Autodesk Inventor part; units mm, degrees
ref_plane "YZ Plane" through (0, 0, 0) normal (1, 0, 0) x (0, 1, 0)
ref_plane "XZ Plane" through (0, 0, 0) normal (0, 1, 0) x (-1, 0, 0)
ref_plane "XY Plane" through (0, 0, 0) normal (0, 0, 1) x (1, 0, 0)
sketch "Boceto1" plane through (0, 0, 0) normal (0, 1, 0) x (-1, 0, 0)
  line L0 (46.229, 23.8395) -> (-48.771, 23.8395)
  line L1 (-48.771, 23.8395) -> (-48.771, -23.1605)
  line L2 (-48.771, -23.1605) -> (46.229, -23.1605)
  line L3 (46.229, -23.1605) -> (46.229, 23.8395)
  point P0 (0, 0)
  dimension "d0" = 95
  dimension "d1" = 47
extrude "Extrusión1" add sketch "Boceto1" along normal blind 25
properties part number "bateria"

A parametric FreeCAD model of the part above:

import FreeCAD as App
import Part
import Sketcher
Q = App.Units.Quantity


def add_polygon(sketch, points):
    """Adds a closed chain of lines whose ends are joined by coincident constraints."""
    first, n = sketch.GeometryCount, len(points)
    for a, b in zip(points, points[1:] + points[:1]):
        sketch.addGeometry(Part.LineSegment(App.Vector(*a, 0), App.Vector(*b, 0)), False)
    for i in range(n):
        sketch.addConstraint(Sketcher.Constraint("Coincident", first + i, 2, first + (i + 1) % n, 1))

doc = App.newDocument("Part")
body = doc.addObject("PartDesign::Body", "Body")

sketch1 = body.newObject("Sketcher::SketchObject", "Sketch")
sketch1.AttachmentSupport = (doc.getObject("XZ_Plane"), [""])
sketch1.MapMode = "FlatFace"
add_polygon(sketch1, [(-46.229, -23.1605), (-46.229, 23.8395), (48.771, 23.8395), (48.771, -23.1605)])
sketch1.addConstraint(Sketcher.Constraint("Vertical", 0))
sketch1.addConstraint(Sketcher.Constraint("Horizontal", 1))
sketch1.addConstraint(Sketcher.Constraint("Vertical", 2))
sketch1.addConstraint(Sketcher.Constraint("Horizontal", 3))
sketch1.addConstraint(Sketcher.Constraint("DistanceX", 1, 1, 1, 2, Q("95 mm")))
sketch1.addConstraint(Sketcher.Constraint("DistanceY", 0, 1, 0, 2, Q("47 mm")))
sketch1.addConstraint(Sketcher.Constraint("DistanceX", 0, 2, -1, 1, Q("46.229 mm")))
sketch1.addConstraint(Sketcher.Constraint("DistanceY", -1, 1, 0, 2, Q("23.8395 mm")))
pad1 = body.newObject("PartDesign::Pad", "Pad")
pad1.Profile = sketch1
pad1.Length = 25
pad1.Reversed = True

doc.recompute()
